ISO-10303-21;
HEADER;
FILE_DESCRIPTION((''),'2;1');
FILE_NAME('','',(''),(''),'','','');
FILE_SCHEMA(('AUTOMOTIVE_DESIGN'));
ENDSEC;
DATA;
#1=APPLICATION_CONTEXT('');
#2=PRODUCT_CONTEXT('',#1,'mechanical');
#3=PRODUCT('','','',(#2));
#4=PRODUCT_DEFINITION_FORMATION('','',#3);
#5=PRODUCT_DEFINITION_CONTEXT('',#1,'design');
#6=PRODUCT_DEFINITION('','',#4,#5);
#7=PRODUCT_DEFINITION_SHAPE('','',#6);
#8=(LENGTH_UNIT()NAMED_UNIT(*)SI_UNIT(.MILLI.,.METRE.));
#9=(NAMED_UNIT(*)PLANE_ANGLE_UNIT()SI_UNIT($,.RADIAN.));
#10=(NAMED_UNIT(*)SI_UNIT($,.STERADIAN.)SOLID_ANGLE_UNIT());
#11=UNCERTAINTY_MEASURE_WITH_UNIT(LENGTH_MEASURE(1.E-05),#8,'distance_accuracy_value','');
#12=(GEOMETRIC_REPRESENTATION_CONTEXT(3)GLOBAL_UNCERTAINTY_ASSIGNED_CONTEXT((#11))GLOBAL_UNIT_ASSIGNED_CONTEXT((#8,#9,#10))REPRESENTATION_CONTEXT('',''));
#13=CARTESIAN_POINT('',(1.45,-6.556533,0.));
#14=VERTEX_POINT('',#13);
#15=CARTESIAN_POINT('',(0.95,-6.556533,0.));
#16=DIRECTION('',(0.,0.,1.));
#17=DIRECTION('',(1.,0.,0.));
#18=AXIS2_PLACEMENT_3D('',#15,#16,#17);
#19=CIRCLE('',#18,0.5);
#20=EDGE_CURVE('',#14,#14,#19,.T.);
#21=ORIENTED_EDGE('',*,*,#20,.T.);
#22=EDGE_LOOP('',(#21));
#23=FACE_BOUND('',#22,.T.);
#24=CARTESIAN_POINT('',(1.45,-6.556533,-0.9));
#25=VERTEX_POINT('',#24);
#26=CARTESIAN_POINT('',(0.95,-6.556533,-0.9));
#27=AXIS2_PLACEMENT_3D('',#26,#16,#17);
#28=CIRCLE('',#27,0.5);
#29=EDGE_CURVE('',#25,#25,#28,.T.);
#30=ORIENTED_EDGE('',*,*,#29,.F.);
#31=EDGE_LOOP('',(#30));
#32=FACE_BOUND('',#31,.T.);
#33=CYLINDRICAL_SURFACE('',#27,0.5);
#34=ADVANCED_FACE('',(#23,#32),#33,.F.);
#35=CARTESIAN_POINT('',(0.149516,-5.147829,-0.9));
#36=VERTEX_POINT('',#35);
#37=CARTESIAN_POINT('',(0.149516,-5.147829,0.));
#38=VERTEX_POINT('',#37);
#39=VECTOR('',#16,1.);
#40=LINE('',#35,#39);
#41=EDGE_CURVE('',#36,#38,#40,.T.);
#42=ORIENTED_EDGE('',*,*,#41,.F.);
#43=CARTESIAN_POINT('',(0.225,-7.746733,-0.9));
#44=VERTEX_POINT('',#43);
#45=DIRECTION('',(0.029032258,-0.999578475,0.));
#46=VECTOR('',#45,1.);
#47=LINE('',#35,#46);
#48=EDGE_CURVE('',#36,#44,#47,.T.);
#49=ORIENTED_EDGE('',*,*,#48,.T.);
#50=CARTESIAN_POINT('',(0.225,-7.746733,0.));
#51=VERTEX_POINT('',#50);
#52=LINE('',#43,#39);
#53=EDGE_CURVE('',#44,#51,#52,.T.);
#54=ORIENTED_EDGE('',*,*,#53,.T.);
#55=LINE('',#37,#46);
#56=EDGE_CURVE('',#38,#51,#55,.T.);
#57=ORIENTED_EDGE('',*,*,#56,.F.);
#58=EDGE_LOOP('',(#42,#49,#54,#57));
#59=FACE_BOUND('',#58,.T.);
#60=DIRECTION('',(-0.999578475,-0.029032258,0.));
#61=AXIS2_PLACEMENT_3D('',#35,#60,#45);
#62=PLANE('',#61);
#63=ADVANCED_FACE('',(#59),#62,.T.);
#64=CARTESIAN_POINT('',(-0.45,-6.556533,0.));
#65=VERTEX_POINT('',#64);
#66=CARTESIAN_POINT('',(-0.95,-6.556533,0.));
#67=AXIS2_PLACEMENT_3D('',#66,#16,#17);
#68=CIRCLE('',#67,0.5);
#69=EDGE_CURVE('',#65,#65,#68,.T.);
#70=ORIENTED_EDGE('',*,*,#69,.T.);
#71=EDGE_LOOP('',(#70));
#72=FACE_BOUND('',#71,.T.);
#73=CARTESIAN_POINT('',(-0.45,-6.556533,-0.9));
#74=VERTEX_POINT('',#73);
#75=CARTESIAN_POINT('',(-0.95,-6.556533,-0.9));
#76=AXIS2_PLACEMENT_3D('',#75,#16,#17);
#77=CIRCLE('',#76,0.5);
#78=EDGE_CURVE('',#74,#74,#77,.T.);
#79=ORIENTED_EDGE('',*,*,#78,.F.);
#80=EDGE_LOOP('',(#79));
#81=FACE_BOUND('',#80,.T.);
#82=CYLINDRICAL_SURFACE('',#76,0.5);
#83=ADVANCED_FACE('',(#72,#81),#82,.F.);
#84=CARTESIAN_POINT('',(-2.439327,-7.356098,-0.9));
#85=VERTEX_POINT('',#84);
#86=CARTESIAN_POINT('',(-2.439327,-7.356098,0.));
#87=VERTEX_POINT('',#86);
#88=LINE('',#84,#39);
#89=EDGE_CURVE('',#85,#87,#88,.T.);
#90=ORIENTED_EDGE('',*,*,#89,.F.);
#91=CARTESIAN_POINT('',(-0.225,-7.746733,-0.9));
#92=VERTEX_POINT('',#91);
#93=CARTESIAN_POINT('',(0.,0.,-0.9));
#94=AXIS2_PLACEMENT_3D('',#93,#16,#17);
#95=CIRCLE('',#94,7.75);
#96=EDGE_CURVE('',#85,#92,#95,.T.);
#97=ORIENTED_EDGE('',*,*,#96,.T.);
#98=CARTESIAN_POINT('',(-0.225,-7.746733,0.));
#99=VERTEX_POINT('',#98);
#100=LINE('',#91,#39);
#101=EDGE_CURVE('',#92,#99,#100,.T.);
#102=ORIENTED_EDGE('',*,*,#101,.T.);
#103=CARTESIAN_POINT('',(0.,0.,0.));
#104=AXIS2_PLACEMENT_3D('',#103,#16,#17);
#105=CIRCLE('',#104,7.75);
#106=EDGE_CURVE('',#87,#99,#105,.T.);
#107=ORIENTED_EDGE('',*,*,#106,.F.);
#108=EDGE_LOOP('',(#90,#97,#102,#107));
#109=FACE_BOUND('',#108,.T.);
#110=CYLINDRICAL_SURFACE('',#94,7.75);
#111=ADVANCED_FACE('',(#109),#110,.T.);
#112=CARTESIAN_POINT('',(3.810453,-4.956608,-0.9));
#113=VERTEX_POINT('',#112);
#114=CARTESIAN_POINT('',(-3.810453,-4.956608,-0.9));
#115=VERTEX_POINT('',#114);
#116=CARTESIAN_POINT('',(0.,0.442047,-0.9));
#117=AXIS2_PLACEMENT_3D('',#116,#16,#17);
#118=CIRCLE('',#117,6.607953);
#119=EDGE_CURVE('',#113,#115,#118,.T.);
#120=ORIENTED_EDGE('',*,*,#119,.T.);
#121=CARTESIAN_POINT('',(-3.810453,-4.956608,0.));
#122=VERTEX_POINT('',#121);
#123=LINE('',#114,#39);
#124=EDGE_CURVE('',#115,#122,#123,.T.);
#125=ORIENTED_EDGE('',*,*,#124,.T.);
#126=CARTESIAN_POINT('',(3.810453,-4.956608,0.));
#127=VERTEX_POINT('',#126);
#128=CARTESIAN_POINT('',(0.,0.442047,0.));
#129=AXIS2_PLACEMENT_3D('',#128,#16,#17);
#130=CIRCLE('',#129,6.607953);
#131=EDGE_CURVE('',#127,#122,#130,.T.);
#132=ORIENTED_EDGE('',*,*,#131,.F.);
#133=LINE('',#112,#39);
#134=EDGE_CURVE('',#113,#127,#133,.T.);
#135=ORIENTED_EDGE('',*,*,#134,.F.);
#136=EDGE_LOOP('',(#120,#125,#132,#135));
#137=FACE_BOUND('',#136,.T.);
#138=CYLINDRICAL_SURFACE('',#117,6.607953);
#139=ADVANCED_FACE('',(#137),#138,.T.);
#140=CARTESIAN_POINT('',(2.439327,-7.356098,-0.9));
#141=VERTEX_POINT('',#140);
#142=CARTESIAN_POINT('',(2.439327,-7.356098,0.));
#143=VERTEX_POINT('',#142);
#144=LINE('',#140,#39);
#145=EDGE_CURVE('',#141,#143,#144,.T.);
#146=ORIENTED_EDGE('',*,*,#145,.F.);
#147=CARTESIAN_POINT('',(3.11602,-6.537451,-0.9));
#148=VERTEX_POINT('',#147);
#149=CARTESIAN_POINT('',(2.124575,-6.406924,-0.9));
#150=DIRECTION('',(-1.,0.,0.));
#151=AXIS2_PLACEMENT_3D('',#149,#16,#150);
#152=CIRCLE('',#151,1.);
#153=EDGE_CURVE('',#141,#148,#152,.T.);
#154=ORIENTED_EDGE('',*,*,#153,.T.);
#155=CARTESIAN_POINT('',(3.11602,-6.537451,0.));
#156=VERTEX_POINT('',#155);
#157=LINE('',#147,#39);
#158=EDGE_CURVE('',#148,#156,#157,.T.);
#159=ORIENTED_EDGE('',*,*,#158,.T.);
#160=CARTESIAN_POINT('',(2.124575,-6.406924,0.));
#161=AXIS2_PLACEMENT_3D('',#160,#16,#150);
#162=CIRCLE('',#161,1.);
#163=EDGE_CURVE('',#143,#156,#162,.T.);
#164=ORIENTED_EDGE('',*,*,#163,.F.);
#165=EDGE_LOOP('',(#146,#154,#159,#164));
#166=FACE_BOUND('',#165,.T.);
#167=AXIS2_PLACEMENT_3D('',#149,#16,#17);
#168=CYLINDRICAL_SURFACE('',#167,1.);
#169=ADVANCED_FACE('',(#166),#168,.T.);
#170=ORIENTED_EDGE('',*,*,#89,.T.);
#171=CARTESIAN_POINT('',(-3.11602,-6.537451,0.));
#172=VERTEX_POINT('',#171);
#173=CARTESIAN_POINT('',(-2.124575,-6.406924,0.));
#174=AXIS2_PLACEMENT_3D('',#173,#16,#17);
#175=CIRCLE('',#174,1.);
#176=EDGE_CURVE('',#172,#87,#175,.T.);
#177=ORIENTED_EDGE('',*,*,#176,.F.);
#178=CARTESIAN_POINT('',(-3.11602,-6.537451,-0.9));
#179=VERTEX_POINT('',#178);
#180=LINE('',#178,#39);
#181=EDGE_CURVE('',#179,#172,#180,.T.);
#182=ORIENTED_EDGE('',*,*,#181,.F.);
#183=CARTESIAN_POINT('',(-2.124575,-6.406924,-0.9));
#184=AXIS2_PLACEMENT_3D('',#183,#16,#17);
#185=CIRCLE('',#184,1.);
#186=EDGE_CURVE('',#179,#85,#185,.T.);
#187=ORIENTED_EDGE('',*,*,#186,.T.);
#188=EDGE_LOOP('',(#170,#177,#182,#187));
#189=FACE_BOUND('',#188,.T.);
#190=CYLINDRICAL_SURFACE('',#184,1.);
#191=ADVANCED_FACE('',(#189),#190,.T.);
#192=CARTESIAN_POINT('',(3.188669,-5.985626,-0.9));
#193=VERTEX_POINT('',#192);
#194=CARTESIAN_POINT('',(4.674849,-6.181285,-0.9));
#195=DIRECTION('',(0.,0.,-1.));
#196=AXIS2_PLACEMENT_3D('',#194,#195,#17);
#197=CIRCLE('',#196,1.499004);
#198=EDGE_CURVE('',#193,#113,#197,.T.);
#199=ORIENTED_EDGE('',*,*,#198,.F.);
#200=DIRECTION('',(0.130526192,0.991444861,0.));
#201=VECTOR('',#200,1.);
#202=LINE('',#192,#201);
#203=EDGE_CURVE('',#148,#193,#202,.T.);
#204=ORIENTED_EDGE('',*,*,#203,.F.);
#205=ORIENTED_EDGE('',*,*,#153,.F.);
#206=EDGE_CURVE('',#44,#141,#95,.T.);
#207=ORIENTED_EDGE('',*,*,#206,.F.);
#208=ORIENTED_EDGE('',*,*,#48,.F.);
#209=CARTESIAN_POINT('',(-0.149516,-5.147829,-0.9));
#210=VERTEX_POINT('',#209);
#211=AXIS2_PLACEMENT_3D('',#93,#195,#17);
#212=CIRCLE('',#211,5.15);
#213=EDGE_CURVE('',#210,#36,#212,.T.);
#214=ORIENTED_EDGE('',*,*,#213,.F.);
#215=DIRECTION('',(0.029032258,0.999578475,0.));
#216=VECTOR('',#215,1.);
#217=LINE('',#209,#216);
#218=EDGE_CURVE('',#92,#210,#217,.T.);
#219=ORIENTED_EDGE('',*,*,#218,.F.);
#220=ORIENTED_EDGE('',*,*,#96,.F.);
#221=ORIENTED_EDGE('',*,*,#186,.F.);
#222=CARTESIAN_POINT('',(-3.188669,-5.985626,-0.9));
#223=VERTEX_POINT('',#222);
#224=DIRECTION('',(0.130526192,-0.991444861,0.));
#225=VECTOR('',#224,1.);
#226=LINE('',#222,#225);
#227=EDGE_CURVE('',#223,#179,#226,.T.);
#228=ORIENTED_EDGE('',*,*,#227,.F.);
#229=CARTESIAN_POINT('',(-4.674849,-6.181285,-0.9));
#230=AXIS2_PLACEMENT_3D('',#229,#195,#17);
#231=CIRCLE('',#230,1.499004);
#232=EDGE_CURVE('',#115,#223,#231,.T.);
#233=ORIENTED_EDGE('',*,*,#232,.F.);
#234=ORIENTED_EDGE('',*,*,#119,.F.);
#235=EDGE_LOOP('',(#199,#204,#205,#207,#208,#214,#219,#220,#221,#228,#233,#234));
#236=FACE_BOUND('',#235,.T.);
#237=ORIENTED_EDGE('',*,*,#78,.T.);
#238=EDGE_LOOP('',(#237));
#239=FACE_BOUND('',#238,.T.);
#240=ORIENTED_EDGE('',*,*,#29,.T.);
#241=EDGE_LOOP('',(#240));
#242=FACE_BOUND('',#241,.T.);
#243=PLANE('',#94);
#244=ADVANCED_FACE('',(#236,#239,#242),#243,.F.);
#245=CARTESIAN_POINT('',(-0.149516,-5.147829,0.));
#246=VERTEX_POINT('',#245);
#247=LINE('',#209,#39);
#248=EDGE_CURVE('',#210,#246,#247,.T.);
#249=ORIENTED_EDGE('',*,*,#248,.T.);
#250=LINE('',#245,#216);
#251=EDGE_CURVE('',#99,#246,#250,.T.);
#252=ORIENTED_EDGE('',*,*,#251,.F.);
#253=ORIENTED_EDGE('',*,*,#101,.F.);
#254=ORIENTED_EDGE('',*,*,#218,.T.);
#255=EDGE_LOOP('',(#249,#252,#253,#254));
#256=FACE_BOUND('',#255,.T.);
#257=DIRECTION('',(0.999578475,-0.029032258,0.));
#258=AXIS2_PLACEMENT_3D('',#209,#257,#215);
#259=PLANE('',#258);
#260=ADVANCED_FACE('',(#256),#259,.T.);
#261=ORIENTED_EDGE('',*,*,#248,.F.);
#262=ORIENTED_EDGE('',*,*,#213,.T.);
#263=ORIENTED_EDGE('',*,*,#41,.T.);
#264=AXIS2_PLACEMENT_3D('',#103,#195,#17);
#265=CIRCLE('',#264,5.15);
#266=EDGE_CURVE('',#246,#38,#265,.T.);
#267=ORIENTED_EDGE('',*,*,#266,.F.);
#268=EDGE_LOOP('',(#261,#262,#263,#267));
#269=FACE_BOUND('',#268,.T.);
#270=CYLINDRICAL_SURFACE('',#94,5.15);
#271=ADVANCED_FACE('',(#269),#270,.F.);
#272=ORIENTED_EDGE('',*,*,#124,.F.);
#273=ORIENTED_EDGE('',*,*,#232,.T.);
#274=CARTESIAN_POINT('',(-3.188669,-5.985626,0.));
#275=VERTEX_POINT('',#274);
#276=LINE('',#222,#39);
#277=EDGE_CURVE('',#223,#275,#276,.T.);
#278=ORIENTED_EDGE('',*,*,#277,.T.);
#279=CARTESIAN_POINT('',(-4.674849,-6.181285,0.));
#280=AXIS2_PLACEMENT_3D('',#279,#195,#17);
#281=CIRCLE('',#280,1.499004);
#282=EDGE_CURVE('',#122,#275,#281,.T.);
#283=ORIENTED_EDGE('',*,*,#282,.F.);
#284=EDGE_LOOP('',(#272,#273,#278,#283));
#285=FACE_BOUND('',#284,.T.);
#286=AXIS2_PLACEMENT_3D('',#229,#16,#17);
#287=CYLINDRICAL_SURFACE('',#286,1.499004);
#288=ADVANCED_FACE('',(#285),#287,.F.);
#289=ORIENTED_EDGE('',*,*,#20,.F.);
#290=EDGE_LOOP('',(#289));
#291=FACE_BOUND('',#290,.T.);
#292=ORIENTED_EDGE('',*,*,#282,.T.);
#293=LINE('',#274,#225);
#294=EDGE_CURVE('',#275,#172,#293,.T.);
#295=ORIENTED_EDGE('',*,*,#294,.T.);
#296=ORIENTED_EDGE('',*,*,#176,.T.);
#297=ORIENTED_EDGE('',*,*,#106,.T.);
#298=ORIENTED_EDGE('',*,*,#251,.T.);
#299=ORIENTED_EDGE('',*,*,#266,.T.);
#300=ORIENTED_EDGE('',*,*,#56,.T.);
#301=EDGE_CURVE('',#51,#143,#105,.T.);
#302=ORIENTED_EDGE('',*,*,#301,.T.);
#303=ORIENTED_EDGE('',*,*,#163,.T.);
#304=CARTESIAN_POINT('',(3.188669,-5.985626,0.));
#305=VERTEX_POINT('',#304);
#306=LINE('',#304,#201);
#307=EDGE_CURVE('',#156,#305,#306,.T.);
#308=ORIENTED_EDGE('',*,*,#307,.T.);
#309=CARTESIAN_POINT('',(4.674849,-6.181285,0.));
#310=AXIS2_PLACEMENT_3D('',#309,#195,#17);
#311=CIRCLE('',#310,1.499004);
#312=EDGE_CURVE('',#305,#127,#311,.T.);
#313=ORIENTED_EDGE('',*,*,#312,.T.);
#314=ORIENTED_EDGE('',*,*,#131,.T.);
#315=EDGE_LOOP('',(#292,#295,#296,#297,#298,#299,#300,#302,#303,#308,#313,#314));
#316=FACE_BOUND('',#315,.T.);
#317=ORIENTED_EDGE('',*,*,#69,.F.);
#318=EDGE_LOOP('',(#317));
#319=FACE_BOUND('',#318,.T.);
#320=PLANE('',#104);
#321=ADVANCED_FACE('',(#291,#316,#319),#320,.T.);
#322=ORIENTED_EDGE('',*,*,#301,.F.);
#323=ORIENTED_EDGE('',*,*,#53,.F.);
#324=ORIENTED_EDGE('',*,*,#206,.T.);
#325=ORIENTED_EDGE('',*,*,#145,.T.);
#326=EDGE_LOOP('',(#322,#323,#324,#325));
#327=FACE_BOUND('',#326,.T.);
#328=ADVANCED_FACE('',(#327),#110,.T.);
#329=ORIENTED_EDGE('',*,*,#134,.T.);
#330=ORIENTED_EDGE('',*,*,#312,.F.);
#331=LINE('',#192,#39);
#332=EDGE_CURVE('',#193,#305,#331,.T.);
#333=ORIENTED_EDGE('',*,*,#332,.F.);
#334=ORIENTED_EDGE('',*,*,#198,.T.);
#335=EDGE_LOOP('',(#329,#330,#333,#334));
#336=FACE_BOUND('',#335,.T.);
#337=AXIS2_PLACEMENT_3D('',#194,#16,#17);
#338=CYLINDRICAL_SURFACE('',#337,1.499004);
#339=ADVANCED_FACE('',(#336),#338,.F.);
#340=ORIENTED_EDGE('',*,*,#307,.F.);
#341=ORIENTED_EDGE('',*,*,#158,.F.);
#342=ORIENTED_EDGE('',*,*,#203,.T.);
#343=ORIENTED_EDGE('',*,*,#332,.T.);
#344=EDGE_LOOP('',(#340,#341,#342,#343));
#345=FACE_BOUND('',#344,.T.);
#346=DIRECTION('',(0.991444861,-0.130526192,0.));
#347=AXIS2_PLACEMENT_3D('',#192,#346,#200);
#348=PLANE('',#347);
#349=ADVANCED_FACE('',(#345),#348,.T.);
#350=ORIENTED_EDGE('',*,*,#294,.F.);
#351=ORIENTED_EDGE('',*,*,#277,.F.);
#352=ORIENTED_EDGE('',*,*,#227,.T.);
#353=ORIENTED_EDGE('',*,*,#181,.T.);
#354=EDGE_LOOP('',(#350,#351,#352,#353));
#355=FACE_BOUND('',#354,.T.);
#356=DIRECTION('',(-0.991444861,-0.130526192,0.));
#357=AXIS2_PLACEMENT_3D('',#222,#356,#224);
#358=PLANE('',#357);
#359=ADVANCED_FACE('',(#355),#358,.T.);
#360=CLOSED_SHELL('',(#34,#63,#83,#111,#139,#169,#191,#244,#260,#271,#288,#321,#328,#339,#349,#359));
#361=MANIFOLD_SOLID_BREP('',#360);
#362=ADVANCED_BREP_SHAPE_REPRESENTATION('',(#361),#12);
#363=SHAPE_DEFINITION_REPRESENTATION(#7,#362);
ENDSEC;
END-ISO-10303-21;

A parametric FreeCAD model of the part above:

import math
import FreeCAD as App
import Part
import Sketcher
Q = App.Units.Quantity

doc = App.newDocument("Part")
params = doc.addObject("Spreadsheet::Sheet", "Params")
for row, (alias, value) in enumerate([
    ("sketch1_diameter", "1 mm"),
    ("sketch1_radius", "1 mm"),
    ("sketch1_radius2", "7.75 mm"),
    ("sketch1_radius3", "5.15 mm"),
    ("pad1_length", "0.9 mm"),
], start=1):
    params.set(f"A{row}", alias)
    params.set(f"B{row}", "=" + value)
    params.setAlias(f"B{row}", alias)

body = doc.addObject("PartDesign::Body", "Body")

# Sketch on XY plane
sketch1 = body.newObject("Sketcher::SketchObject", "Sketch")
sketch1.AttachmentSupport = (doc.getObject("XY_Plane"), [""])
sketch1.MapMode = "FlatFace"
sketch1.addGeometry(Part.LineSegment(App.Vector(0.15, -5.15, 0), App.Vector(0.23, -7.75, 0)), False)
sketch1.addGeometry(Part.ArcOfCircle(Part.Circle(App.Vector(0, 0, 0), App.Vector(0, 0, 1), 7.75), math.radians(-88.34), math.radians(-71.65)), False)
sketch1.addGeometry(Part.ArcOfCircle(Part.Circle(App.Vector(2.12, -6.41, 0), App.Vector(0, 0, 1), 1), math.radians(-72), math.radians(-8)), False)
sketch1.addGeometry(Part.LineSegment(App.Vector(3.12, -6.54, 0), App.Vector(3.19, -5.99, 0)), False)
sketch1.addGeometry(Part.ArcOfCircle(Part.Circle(App.Vector(4.67, -6.18, 0), App.Vector(0, 0, 1), 1.5), math.radians(125), math.radians(172)), False)
sketch1.addGeometry(Part.ArcOfCircle(Part.Circle(App.Vector(0, 0.44, 0), App.Vector(0, 0, 1), 6.61), math.radians(-55), math.radians(235)), False)
sketch1.addGeometry(Part.ArcOfCircle(Part.Circle(App.Vector(-4.67, -6.18, 0), App.Vector(0, 0, 1), 1.5), math.radians(8), math.radians(55)), False)
sketch1.addGeometry(Part.LineSegment(App.Vector(-3.19, -5.99, 0), App.Vector(-3.12, -6.54, 0)), False)
sketch1.addGeometry(Part.ArcOfCircle(Part.Circle(App.Vector(-2.12, -6.41, 0), App.Vector(0, 0, 1), 1), math.radians(-172), math.radians(-108)), False)
sketch1.addGeometry(Part.ArcOfCircle(Part.Circle(App.Vector(0, 0, 0), App.Vector(0, 0, 1), 7.75), math.radians(-108.35), math.radians(-91.66)), False)
sketch1.addGeometry(Part.LineSegment(App.Vector(-0.23, -7.75, 0), App.Vector(-0.15, -5.15, 0)), False)
sketch1.addGeometry(Part.ArcOfCircle(Part.Circle(App.Vector(0, 0, 0), App.Vector(0, 0, 1), 5.15), math.radians(-88), math.radians(268)), False)
sketch1.addGeometry(Part.Circle(App.Vector(-0.95, -6.56, 0), App.Vector(0, 0, 1), 0.5), False)
sketch1.addGeometry(Part.Circle(App.Vector(0.95, -6.56, 0), App.Vector(0, 0, 1), 0.5), False)
sketch1.addConstraint(Sketcher.Constraint("Coincident", 0, 2, 1, 1))
sketch1.addConstraint(Sketcher.Constraint("Tangent", 1, 2, 2, 1))
sketch1.addConstraint(Sketcher.Constraint("Tangent", 2, 2, 3, 1))
sketch1.addConstraint(Sketcher.Constraint("Tangent", 3, 2, 4, 2))
sketch1.addConstraint(Sketcher.Constraint("Tangent", 4, 1, 5, 1))
sketch1.addConstraint(Sketcher.Constraint("Tangent", 5, 2, 6, 2))
sketch1.addConstraint(Sketcher.Constraint("Tangent", 6, 1, 7, 1))
sketch1.addConstraint(Sketcher.Constraint("Tangent", 7, 2, 8, 1))
sketch1.addConstraint(Sketcher.Constraint("Tangent", 8, 2, 9, 1))
sketch1.addConstraint(Sketcher.Constraint("Coincident", 9, 2, 10, 1))
sketch1.addConstraint(Sketcher.Constraint("Coincident", 10, 2, 11, 2))
sketch1.addConstraint(Sketcher.Constraint("Coincident", 11, 1, 0, 1))
sketch1.addConstraint(Sketcher.Constraint("Coincident", 1, 3, -1, 1))
sketch1.addConstraint(Sketcher.Constraint("Coincident", 9, 3, -1, 1))
sketch1.addConstraint(Sketcher.Constraint("Coincident", 11, 3, -1, 1))
sketch1.addConstraint(Sketcher.Constraint("Equal", 4, 6))
sketch1.addConstraint(Sketcher.Constraint("Equal", 2, 8))
sketch1.addConstraint(Sketcher.Constraint("Equal", 1, 9))
sketch1.addConstraint(Sketcher.Constraint("Equal", 12, 13))
sketch1.addConstraint(Sketcher.Constraint("Symmetric", 4, 3, 6, 3, -2))
sketch1.addConstraint(Sketcher.Constraint("Symmetric", 12, 3, 13, 3, -2))
sketch1.addConstraint(Sketcher.Constraint("Horizontal", 2, 3, 8, 3))
sketch1.addConstraint(Sketcher.Constraint("Horizontal", 0, 2, 9, 2))
sketch1.addConstraint(Sketcher.Constraint("Horizontal", 10, 2, 11, 1))
sketch1.addConstraint(Sketcher.Constraint("Diameter", 12, 1.0))
sketch1.addConstraint(Sketcher.Constraint("Radius", 2, 1.0))
sketch1.addConstraint(Sketcher.Constraint("Radius", 1, 7.75))
sketch1.addConstraint(Sketcher.Constraint("Radius", 11, 5.15))
sketch1.addConstraint(Sketcher.Constraint("Angle", 3, Q("82.5 deg")))
sketch1.addConstraint(Sketcher.Constraint("DistanceX", 12, 3, 13, 3, 1.9))
sketch1.addConstraint(Sketcher.Constraint("DistanceX", 9, 2, 0, 2, 0.45))
sketch1.addConstraint(Sketcher.Constraint("Radius", 4, 1.499004))
sketch1.addConstraint(Sketcher.Constraint("Radius", 5, 6.607953))
sketch1.addConstraint(Sketcher.Constraint("DistanceY", 1, 2, -1, 1, 7.356098))
sketch1.addConstraint(Sketcher.Constraint("DistanceX", 6, 3, 4, 3, 9.349698))
sketch1.addConstraint(Sketcher.Constraint("DistanceY", 0, 2, 13, 3, 1.1902))
sketch1.addConstraint(Sketcher.Constraint("DistanceY", 10, 2, -1, 1, 5.147829))
sketch1.setExpression("Constraints[24]", "Params.sketch1_diameter")
sketch1.setExpression("Constraints[25]", "Params.sketch1_radius")
sketch1.setExpression("Constraints[26]", "Params.sketch1_radius2")
sketch1.setExpression("Constraints[27]", "Params.sketch1_radius3")
pad1 = body.newObject("PartDesign::Pad", "Pad")
pad1.Profile = sketch1
pad1.setExpression("Length", "Params.pad1_length")
pad1.Reversed = True

doc.recompute()
